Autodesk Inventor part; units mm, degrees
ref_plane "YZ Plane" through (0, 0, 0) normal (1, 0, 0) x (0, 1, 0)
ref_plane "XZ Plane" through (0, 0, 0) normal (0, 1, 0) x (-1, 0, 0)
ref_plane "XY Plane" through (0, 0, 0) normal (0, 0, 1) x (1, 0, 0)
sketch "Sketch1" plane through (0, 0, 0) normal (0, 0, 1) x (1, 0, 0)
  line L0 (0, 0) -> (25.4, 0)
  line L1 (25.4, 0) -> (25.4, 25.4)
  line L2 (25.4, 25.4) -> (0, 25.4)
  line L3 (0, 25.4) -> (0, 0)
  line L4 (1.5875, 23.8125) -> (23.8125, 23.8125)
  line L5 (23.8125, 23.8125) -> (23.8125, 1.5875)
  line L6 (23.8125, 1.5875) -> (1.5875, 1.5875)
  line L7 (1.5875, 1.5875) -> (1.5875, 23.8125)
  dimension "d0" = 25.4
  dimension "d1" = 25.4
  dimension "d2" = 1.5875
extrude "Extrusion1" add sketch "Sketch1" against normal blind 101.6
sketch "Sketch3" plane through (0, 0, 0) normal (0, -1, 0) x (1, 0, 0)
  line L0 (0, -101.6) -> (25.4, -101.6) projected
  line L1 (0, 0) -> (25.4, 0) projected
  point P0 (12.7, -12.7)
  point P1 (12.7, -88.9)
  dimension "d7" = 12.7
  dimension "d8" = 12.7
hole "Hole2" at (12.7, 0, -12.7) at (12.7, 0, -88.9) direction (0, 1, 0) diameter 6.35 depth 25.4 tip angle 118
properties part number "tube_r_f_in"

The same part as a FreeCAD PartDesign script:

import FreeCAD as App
import Part
import Sketcher

V = App.Vector
Q = App.Units.Quantity


def add_polygon(sketch, points):
    """Adds a closed chain of lines whose ends are joined by coincident constraints."""
    first, n = sketch.GeometryCount, len(points)
    for a, b in zip(points, points[1:] + points[:1]):
        sketch.addGeometry(Part.LineSegment(App.Vector(*a, 0), App.Vector(*b, 0)), False)
    for i in range(n):
        sketch.addConstraint(Sketcher.Constraint("Coincident", first + i, 2, first + (i + 1) % n, 1))

doc = App.newDocument("Part")
body = doc.addObject("PartDesign::Body", "Body")

sketch1 = body.newObject("Sketcher::SketchObject", "Sketch")
sketch1.AttachmentSupport = (doc.getObject("XY_Plane"), [""])
sketch1.MapMode = "FlatFace"
add_polygon(sketch1, [(0, 25), (0, 0), (25, 0), (25, 25)])
add_polygon(sketch1, [(2, 2), (2, 24), (24, 24), (24, 2)])
sketch1.addConstraint([
    Sketcher.Constraint("Vertical", 0),
    Sketcher.Constraint("Horizontal", 1),
    Sketcher.Constraint("Vertical", 2),
    Sketcher.Constraint("Horizontal", 3),
    Sketcher.Constraint("Vertical", 4),
    Sketcher.Constraint("Horizontal", 5),
    Sketcher.Constraint("Vertical", 6),
    Sketcher.Constraint("Horizontal", 7),
    Sketcher.Constraint("Coincident", 0, 2, -1, 1),
    Sketcher.Constraint("Equal", 3, 0),
    Sketcher.Constraint("Equal", 7, 4),
    Sketcher.Constraint("DistanceX", 1, 1, 1, 2, Q("1 in")),
    Sketcher.Constraint("DistanceX", -1, 1, 4, 2, Q("0.0625 in")),
    Sketcher.Constraint("DistanceY", -1, 1, 6, 2, Q("0.0625 in")),
    Sketcher.Constraint("DistanceY", 4, 2, 3, 2, Q("0.0625 in")),
])
pad1 = body.newObject("PartDesign::Pad", "Pad")
pad1.Profile = sketch1
pad1.Length = Q("4 in")
pad1.Reversed = True

sketch2 = body.newObject("Sketcher::SketchObject", "Sketch001")
sketch2.AttachmentSupport = (doc.getObject("XZ_Plane"), [""])
sketch2.MapMode = "FlatFace"
sketch2.addGeometry([
    Part.Circle(V(12.7, -12.7, 0), V(0, 0, 1), 3.2),
    Part.Circle(V(12.7, -88.9, 0), V(0, 0, 1), 3.2),
], False)
sketch2.addConstraint([
    Sketcher.Constraint("Equal", 0, 1),
    Sketcher.Constraint("Vertical", 0, 3, 1, 3),
    Sketcher.Constraint("Diameter", 0, Q("0.25 in")),
    Sketcher.Constraint("DistanceY", 1, 3, 0, 3, Q("3 in")),
    Sketcher.Constraint("DistanceX", -1, 1, 0, 3, Q("0.5 in")),
    Sketcher.Constraint("DistanceY", 0, 3, -1, 1, Q("0.5 in")),
])
doc.recompute()
hole = body.newObject("PartDesign::Hole", "Hole")
hole.Profile = sketch2
hole.ThreadType = "None"
hole.Diameter = Q("0.25 in")
hole.DepthType = "Dimension"
hole.Depth = Q("1 in")
hole.DrillPoint = "Angled"
hole.DrillPointAngle = 118

doc.recompute()
